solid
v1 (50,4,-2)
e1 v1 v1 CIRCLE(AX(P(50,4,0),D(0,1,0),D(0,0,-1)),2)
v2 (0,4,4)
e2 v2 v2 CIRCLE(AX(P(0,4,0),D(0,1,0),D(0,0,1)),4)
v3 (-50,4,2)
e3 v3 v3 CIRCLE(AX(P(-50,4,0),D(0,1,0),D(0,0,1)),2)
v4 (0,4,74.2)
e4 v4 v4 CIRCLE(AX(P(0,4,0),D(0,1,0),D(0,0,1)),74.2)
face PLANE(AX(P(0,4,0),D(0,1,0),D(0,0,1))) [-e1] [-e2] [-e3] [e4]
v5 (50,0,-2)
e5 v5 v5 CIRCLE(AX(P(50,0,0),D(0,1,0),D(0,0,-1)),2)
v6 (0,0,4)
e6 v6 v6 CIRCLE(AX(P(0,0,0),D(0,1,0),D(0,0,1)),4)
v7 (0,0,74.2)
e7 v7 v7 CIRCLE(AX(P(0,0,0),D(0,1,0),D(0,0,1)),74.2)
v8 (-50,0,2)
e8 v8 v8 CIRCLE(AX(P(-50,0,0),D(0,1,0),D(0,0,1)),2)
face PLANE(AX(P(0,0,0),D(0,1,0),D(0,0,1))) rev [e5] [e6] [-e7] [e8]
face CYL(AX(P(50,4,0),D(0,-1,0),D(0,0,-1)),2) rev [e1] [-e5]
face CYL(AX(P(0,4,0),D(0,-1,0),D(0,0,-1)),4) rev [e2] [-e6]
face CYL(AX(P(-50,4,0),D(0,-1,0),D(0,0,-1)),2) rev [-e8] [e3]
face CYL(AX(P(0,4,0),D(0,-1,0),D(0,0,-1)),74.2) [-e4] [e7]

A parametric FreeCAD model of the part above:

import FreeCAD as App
import Part
import Sketcher
from FreeCAD import Vector
Q = App.Units.Quantity

doc = App.newDocument("Part")
params = doc.addObject("Spreadsheet::Sheet", "Params")
for row, (alias, value) in enumerate([
    ("sketch1_diameter", "4 mm"),
    ("sketch1_diameter2", "8 mm"),
    ("sketch1_diameter3", "148.4 mm"),
    ("pad1_length", "4 mm"),
], start=1):
    params.set(f"A{row}", alias)
    params.set(f"B{row}", "=" + value)
    params.setAlias(f"B{row}", alias)

body = doc.addObject("PartDesign::Body", "Body")

# Sketch on XZ plane
sketch1 = body.newObject("Sketcher::SketchObject", "Sketch")
sketch1.AttachmentSupport = (doc.getObject("XZ_Plane"), [""])
sketch1.MapMode = "FlatFace"
sketch1.addGeometry([
    Part.Circle(Vector(0, 0, 0), Vector(0, 0, 1), 74.2),
    Part.Circle(Vector(-50, 0, 0), Vector(0, 0, 1), 2),
    Part.Circle(Vector(50, 0, 0), Vector(0, 0, 1), 2),
    Part.Circle(Vector(0, 0, 0), Vector(0, 0, 1), 4),
], False)
sketch1.addConstraint([
    Sketcher.Constraint("Coincident", 0, 3, -1, 1),
    Sketcher.Constraint("Coincident", 3, 3, -1, 1),
    Sketcher.Constraint("Equal", 1, 2),
    Sketcher.Constraint("Symmetric", 1, 3, 2, 3, -1, 1),
    Sketcher.Constraint("PointOnObject", 1, 3, -1),
    Sketcher.Constraint("Diameter", 1, Q("4 mm")),
    Sketcher.Constraint("Diameter", 3, Q("8 mm")),
    Sketcher.Constraint("Diameter", 0, Q("148.4 mm")),
    Sketcher.Constraint("DistanceX", 1, 3, -1, 1, Q("50 mm")),
])
sketch1.setExpression("Constraints[5]", "Params.sketch1_diameter")
sketch1.setExpression("Constraints[6]", "Params.sketch1_diameter2")
sketch1.setExpression("Constraints[7]", "Params.sketch1_diameter3")
pad1 = body.newObject("PartDesign::Pad", "Pad")
pad1.Profile = sketch1
pad1.setExpression("Length", "Params.pad1_length")
pad1.Reversed = True

doc.recompute()
